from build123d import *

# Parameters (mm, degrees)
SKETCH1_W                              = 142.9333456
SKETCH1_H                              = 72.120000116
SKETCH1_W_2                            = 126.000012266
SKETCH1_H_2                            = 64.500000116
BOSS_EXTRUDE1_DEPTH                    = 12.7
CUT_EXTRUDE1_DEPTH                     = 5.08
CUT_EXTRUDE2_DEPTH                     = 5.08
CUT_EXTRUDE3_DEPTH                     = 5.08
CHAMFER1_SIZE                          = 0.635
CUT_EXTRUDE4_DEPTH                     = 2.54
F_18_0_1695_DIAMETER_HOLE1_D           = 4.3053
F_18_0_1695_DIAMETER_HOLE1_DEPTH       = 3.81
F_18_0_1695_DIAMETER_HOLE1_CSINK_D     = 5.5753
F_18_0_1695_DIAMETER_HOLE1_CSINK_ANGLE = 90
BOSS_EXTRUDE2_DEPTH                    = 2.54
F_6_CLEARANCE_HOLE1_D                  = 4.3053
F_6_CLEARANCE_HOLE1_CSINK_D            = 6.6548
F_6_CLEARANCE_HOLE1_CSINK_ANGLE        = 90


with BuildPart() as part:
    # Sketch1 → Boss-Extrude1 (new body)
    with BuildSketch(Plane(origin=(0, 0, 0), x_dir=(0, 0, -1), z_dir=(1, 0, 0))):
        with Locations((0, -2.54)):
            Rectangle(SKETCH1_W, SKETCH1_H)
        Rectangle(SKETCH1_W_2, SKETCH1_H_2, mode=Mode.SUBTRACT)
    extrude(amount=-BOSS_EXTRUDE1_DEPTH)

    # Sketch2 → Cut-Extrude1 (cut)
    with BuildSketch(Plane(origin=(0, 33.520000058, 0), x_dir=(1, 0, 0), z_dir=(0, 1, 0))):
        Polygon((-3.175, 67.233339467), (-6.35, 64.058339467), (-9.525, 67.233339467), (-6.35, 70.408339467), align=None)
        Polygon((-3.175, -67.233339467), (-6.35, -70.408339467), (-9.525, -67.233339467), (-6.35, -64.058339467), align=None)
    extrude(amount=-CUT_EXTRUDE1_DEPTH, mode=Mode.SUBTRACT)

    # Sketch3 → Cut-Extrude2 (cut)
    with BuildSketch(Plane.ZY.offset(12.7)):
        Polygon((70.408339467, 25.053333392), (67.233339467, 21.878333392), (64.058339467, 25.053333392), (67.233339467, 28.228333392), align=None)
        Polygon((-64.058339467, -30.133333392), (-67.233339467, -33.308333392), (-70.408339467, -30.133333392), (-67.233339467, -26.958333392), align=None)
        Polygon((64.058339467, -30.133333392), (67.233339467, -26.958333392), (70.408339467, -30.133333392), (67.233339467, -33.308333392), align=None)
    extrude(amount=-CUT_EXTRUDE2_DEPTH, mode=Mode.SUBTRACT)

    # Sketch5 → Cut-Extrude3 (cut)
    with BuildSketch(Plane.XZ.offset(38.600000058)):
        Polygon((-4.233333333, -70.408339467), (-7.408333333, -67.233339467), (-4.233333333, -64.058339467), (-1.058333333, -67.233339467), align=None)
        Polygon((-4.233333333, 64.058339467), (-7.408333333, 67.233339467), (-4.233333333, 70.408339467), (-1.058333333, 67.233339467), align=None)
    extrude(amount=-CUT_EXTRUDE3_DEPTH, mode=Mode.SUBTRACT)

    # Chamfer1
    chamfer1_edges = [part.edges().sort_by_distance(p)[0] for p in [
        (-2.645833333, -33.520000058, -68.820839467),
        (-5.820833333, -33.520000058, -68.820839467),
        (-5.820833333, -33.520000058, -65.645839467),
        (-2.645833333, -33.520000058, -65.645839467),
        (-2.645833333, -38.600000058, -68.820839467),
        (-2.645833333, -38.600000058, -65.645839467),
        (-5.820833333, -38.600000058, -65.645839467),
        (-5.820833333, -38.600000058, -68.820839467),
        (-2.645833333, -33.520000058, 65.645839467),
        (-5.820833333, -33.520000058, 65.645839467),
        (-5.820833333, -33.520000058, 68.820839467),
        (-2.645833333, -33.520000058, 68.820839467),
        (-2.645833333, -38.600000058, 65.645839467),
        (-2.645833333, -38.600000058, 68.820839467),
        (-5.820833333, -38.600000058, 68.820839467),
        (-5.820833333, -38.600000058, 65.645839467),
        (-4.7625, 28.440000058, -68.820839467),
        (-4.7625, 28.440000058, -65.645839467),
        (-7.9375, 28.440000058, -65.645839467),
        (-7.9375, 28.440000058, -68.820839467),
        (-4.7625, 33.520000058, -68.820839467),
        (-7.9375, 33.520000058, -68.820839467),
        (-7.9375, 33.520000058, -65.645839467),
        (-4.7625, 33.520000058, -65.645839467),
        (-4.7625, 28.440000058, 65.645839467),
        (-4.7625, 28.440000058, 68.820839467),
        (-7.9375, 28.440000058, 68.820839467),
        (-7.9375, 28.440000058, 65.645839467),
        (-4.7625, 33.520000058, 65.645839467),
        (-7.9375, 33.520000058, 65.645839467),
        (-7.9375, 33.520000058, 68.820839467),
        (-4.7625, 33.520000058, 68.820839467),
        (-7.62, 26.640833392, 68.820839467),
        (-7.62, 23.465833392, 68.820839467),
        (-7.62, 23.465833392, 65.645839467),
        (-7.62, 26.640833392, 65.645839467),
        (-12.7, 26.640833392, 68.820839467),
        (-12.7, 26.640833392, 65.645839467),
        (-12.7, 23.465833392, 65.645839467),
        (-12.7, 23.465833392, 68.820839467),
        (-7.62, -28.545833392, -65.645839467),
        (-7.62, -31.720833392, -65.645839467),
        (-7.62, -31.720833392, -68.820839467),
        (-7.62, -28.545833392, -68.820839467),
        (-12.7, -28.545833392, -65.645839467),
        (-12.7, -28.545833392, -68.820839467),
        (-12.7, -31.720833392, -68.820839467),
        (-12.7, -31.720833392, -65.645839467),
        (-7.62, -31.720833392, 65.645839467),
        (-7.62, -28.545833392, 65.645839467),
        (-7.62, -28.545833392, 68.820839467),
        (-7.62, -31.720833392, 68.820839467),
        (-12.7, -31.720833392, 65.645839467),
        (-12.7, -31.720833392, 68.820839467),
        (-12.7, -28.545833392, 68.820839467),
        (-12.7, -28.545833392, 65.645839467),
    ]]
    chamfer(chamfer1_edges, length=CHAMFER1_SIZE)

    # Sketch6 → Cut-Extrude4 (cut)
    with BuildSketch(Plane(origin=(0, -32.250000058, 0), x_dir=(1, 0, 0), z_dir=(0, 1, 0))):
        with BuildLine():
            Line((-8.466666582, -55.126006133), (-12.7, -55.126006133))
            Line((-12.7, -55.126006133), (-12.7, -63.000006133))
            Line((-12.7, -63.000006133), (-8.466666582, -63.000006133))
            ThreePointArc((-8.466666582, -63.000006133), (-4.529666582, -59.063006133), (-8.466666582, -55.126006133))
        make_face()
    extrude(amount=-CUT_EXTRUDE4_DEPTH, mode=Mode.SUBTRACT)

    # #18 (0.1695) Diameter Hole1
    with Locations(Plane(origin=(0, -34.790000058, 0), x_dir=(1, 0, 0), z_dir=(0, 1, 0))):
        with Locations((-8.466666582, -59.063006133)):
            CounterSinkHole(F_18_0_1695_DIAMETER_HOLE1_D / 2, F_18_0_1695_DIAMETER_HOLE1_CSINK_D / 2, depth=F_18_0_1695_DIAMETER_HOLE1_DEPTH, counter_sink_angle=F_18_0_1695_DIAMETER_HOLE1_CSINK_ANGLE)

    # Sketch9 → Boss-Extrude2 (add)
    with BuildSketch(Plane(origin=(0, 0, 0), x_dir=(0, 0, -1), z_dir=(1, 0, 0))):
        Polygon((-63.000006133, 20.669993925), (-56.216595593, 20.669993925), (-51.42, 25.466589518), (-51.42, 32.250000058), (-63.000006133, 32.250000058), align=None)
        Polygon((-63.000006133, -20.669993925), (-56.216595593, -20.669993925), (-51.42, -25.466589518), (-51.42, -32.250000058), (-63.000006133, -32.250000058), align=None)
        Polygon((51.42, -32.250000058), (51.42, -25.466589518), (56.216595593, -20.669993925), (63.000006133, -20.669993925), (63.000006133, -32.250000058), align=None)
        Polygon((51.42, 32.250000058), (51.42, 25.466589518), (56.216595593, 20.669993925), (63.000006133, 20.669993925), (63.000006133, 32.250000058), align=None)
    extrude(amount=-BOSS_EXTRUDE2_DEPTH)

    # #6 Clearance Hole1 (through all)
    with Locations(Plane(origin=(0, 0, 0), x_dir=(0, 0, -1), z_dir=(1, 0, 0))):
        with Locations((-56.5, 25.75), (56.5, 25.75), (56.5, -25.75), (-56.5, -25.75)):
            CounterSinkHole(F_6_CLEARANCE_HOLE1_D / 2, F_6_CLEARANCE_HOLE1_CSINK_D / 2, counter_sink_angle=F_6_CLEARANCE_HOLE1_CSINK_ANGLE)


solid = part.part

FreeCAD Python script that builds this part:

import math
import FreeCAD as App
import Part
import Sketcher
from FreeCAD import Vector
Q = App.Units.Quantity


def edges_at(feature, points):
    """Names of the edges that pass closest to the given points."""
    edges = feature.Shape.Edges
    near = lambda p: min(range(len(edges)), key=lambda i: edges[i].distToShape(Part.Vertex(*p))[0])
    return sorted({f"Edge{near(p) + 1}" for p in points})


def add_polygon(sketch, points):
    """Adds a closed chain of lines whose ends are joined by coincident constraints."""
    first, n = sketch.GeometryCount, len(points)
    for a, b in zip(points, points[1:] + points[:1]):
        sketch.addGeometry(Part.LineSegment(App.Vector(*a, 0), App.Vector(*b, 0)), False)
    for i in range(n):
        sketch.addConstraint(Sketcher.Constraint("Coincident", first + i, 2, first + (i + 1) % n, 1))

doc = App.newDocument("Part")
body = doc.addObject("PartDesign::Body", "Body")

# Sketch on YZ plane
sketch1 = doc.addObject("Sketcher::SketchObject", "Sketch")
body.addObject(sketch1)
sketch1.AttachmentSupport = (doc.YZ_Plane, [""])
sketch1.MapMode = "FlatFace"
add_polygon(sketch1, [(34, 71), (-39, 71), (-39, -71), (34, -71)])  # lines 0-3
add_polygon(sketch1, [(-32, -63), (-32, 63), (32, 63), (32, -63)])  # lines 4-7
sketch1.addConstraint(Sketcher.Constraint("Horizontal", 0))
sketch1.addConstraint(Sketcher.Constraint("Vertical", 1))
sketch1.addConstraint(Sketcher.Constraint("Horizontal", 2))
sketch1.addConstraint(Sketcher.Constraint("Vertical", 3))
sketch1.addConstraint(Sketcher.Constraint("Vertical", 4))
sketch1.addConstraint(Sketcher.Constraint("Horizontal", 5))
sketch1.addConstraint(Sketcher.Constraint("Vertical", 6))
sketch1.addConstraint(Sketcher.Constraint("Horizontal", 7))
sketch1.addConstraint(Sketcher.Constraint("Symmetric", 4, 2, 6, 2, -1, 1))
sketch1.addConstraint(Sketcher.Constraint("DistanceX", 0, 2, 4, 2, Q("0.25 in")))
sketch1.addConstraint(Sketcher.Constraint("DistanceX", 5, 2, 3, 2, Q("0.05 in")))
sketch1.addConstraint(Sketcher.Constraint("DistanceX", 0, 2, 0, 1, Q("72.12 mm")))
sketch1.addConstraint(Sketcher.Constraint("DistanceY", 1, 2, 1, 1, Q("142.933346 mm")))
sketch1.addConstraint(Sketcher.Constraint("DistanceY", 4, 1, 4, 2, Q("126.000012 mm")))
sketch1.addConstraint(Sketcher.Constraint("DistanceY", 1, 2, 4, 2, Q("134.466679 mm")))
pad1 = doc.addObject("PartDesign::Pad", "Pad")
body.addObject(pad1)
pad1.Profile = sketch1
pad1.Length = Q("0.5 in")
pad1.Reversed = True

# Sketch on XZ plane
sketch2 = doc.addObject("Sketcher::SketchObject", "Sketch001")
body.addObject(sketch2)
sketch2.AttachmentSupport = (doc.XZ_Plane, [""])
sketch2.MapMode = "FlatFace"
sketch2.AttachmentOffset = App.Placement(Vector(0, 0, -33.52), App.Rotation())
add_polygon(sketch2, [(-6.3, -64.1), (-3.2, -67.2), (-6.3, -70.4), (-9.5, -67.2)])  # lines 0-3
add_polygon(sketch2, [(-6.3, 70.4), (-3.2, 67.2), (-6.3, 64.1), (-9.5, 67.2)])  # lines 4-7
sketch2.addConstraint(Sketcher.Constraint("Symmetric", 0, 2, 4, 2, -1))
sketch2.addConstraint(Sketcher.Constraint("Symmetric", 3, 2, 5, 2, -1))
sketch2.addConstraint(Sketcher.Constraint("Symmetric", 2, 2, 6, 2, -1))
sketch2.addConstraint(Sketcher.Constraint("Symmetric", 1, 2, 7, 2, -1))
sketch2.addConstraint(Sketcher.Constraint("Perpendicular", 0, 1))
sketch2.addConstraint(Sketcher.Constraint("Perpendicular", 1, 2))
sketch2.addConstraint(Sketcher.Constraint("Perpendicular", 2, 3))
sketch2.addConstraint(Sketcher.Constraint("Perpendicular", 3, 4))
sketch2.addConstraint(Sketcher.Constraint("Horizontal", 0, 2, 2, 2))
sketch2.addConstraint(Sketcher.Constraint("DistanceX", 1, 2, -1, 1, Q("0.25 in")))
sketch2.addConstraint(Sketcher.Constraint("DistanceX", 2, 2, 0, 2, Q("0.25 in")))
sketch2.addConstraint(Sketcher.Constraint("DistanceY", 0, 2, -1, 1, Q("67.233339 mm")))
pocket1 = doc.addObject("PartDesign::Pocket", "Pocket")
body.addObject(pocket1)
pocket1.Profile = sketch2
pocket1.Length = Q("0.2 in")
pocket1.Reversed = True

# Sketch on YZ plane
sketch3 = doc.addObject("Sketcher::SketchObject", "Sketch002")
body.addObject(sketch3)
sketch3.AttachmentSupport = (doc.YZ_Plane, [""])
sketch3.MapMode = "FlatFace"
sketch3.AttachmentOffset = App.Placement(Vector(0, 0, -0.5 * 25.4), App.Rotation())
add_polygon(sketch3, [(21.9, 67.2), (25.1, 70.4), (28.2, 67.2), (25.1, 64.1)])  # lines 0-3
add_polygon(sketch3, [(-33.3, -67.2), (-30.1, -64.1), (-27, -67.2), (-30.1, -70.4)])  # lines 4-7
add_polygon(sketch3, [(-27, 67.2), (-30.1, 64.1), (-33.3, 67.2), (-30.1, 70.4)])  # lines 8-11
sketch3.addConstraint(Sketcher.Constraint("Symmetric", 4, 2, 8, 2, -1))
sketch3.addConstraint(Sketcher.Constraint("Symmetric", 7, 2, 9, 2, -1))
sketch3.addConstraint(Sketcher.Constraint("Symmetric", 6, 2, 10, 2, -1))
sketch3.addConstraint(Sketcher.Constraint("Symmetric", 5, 2, 11, 2, -1))
sketch3.addConstraint(Sketcher.Constraint("Perpendicular", 0, 1))
sketch3.addConstraint(Sketcher.Constraint("Perpendicular", 1, 2))
sketch3.addConstraint(Sketcher.Constraint("Perpendicular", 2, 3))
sketch3.addConstraint(Sketcher.Constraint("Perpendicular", 3, 4))
sketch3.addConstraint(Sketcher.Constraint("Perpendicular", 4, 5))
sketch3.addConstraint(Sketcher.Constraint("Perpendicular", 5, 6))
sketch3.addConstraint(Sketcher.Constraint("Perpendicular", 6, 7))
sketch3.addConstraint(Sketcher.Constraint("Perpendicular", 7, 8))
sketch3.addConstraint(Sketcher.Constraint("Horizontal", 1, 2, 3, 2))
sketch3.addConstraint(Sketcher.Constraint("Horizontal", 5, 2, 7, 2))
sketch3.addConstraint(Sketcher.Constraint("Horizontal", 2, 2, 8, 2))
sketch3.addConstraint(Sketcher.Constraint("Horizontal", 3, 2, 9, 2))
sketch3.addConstraint(Sketcher.Constraint("DistanceY", 2, 2, 0, 2, Q("0.25 in")))
sketch3.addConstraint(Sketcher.Constraint("DistanceY", -1, 1, 0, 2, Q("70.408339 mm")))
sketch3.addConstraint(Sketcher.Constraint("DistanceX", -1, 1, 0, 2, Q("25.053333 mm")))
sketch3.addConstraint(Sketcher.Constraint("DistanceX", 4, 2, -1, 1, Q("30.133333 mm")))
pocket2 = doc.addObject("PartDesign::Pocket", "Pocket001")
body.addObject(pocket2)
pocket2.Profile = sketch3
pocket2.Length = Q("0.2 in")
pocket2.Reversed = True

# Sketch on XZ plane
sketch4 = doc.addObject("Sketcher::SketchObject", "Sketch003")
body.addObject(sketch4)
sketch4.AttachmentSupport = (doc.XZ_Plane, [""])
sketch4.MapMode = "FlatFace"
sketch4.AttachmentOffset = App.Placement(Vector(0, 0, 38.6), App.Rotation())
add_polygon(sketch4, [(-7.4, -67.2), (-4.2, -70.4), (-1.1, -67.2), (-4.2, -64.1)])  # lines 0-3
add_polygon(sketch4, [(-7.4, 67.2), (-4.2, 64.1), (-1.1, 67.2), (-4.2, 70.4)])  # lines 4-7
sketch4.addConstraint(Sketcher.Constraint("Symmetric", 2, 2, 4, 2, -1))
sketch4.addConstraint(Sketcher.Constraint("Symmetric", 1, 2, 5, 2, -1))
sketch4.addConstraint(Sketcher.Constraint("Symmetric", 0, 2, 6, 2, -1))
sketch4.addConstraint(Sketcher.Constraint("Symmetric", 3, 2, 7, 2, -1))
sketch4.addConstraint(Sketcher.Constraint("Perpendicular", 0, 1))
sketch4.addConstraint(Sketcher.Constraint("Perpendicular", 1, 2))
sketch4.addConstraint(Sketcher.Constraint("Perpendicular", 2, 3))
sketch4.addConstraint(Sketcher.Constraint("Perpendicular", 3, 4))
sketch4.addConstraint(Sketcher.Constraint("Horizontal", 1, 2, 3, 2))
sketch4.addConstraint(Sketcher.Constraint("DistanceY", 0, 2, 2, 2, Q("0.25 in")))
sketch4.addConstraint(Sketcher.Constraint("DistanceY", 0, 2, -1, 1, Q("70.408339 mm")))
sketch4.addConstraint(Sketcher.Constraint("DistanceX", 0, 2, -1, 1, Q("4.233333 mm")))
pocket3 = doc.addObject("PartDesign::Pocket", "Pocket002")
body.addObject(pocket3)
pocket3.Profile = sketch4
pocket3.Length = Q("0.2 in")
doc.recompute()

chamfer = doc.addObject("PartDesign::Chamfer", "Chamfer")
body.addObject(chamfer)
chamfer.Base = (pocket3, edges_at(pocket3, [
    (-2.646, -33.52, -68.821),
    (-5.821, -33.52, -68.821),
    (-5.821, -33.52, -65.646),
    (-2.646, -33.52, -65.646),
    (-2.646, -38.6, -68.821),
    (-2.646, -38.6, -65.646),
    (-5.821, -38.6, -65.646),
    (-5.821, -38.6, -68.821),
    (-2.646, -33.52, 65.646),
    (-5.821, -33.52, 65.646),
    (-5.821, -33.52, 68.821),
    (-2.646, -33.52, 68.821),
    (-2.646, -38.6, 65.646),
    (-2.646, -38.6, 68.821),
    (-5.821, -38.6, 68.821),
    (-5.821, -38.6, 65.646),
    (-4.763, 28.44, -68.821),
    (-4.763, 28.44, -65.646),
    (-7.938, 28.44, -65.646),
    (-7.938, 28.44, -68.821),
    (-4.763, 33.52, -68.821),
    (-7.938, 33.52, -68.821),
    (-7.938, 33.52, -65.646),
    (-4.763, 33.52, -65.646),
    (-4.763, 28.44, 65.646),
    (-4.763, 28.44, 68.821),
    (-7.938, 28.44, 68.821),
    (-7.938, 28.44, 65.646),
    (-4.763, 33.52, 65.646),
    (-7.938, 33.52, 65.646),
    (-7.938, 33.52, 68.821),
    (-4.763, 33.52, 68.821),
    (-7.62, 26.641, 68.821),
    (-7.62, 23.466, 68.821),
    (-7.62, 23.466, 65.646),
    (-7.62, 26.641, 65.646),
    (-12.7, 26.641, 68.821),
    (-12.7, 26.641, 65.646),
    (-12.7, 23.466, 65.646),
    (-12.7, 23.466, 68.821),
    (-7.62, -28.546, -65.646),
    (-7.62, -31.721, -65.646),
    (-7.62, -31.721, -68.821),
    (-7.62, -28.546, -68.821),
    (-12.7, -28.546, -65.646),
    (-12.7, -28.546, -68.821),
    (-12.7, -31.721, -68.821),
    (-12.7, -31.721, -65.646),
    (-7.62, -31.721, 65.646),
    (-7.62, -28.546, 65.646),
    (-7.62, -28.546, 68.821),
    (-7.62, -31.721, 68.821),
    (-12.7, -31.721, 65.646),
    (-12.7, -31.721, 68.821),
    (-12.7, -28.546, 68.821),
    (-12.7, -28.546, 65.646),
]))
chamfer.Size = Q("0.025 in")

# Sketch on XZ plane
sketch5 = doc.addObject("Sketcher::SketchObject", "Sketch004")
body.addObject(sketch5)
sketch5.AttachmentSupport = (doc.XZ_Plane, [""])
sketch5.MapMode = "FlatFace"
sketch5.AttachmentOffset = App.Placement(Vector(0, 0, 32.25), App.Rotation())
sketch5.addGeometry(Part.LineSegment(Vector(-8.5, 55.1, 0), Vector(-12.7, 55.1, 0)), False)
sketch5.addGeometry(Part.LineSegment(Vector(-12.7, 55.1, 0), Vector(-12.7, 63, 0)), False)
sketch5.addGeometry(Part.LineSegment(Vector(-12.7, 63, 0), Vector(-8.5, 63, 0)), False)
sketch5.addGeometry(Part.ArcOfCircle(Part.Circle(Vector(-8.5, 59.1, 0), Vector(0, 0, 1), 3.9), math.radians(-90), math.radians(90)), False)
sketch5.addConstraint(Sketcher.Constraint("Coincident", 0, 2, 1, 1))
sketch5.addConstraint(Sketcher.Constraint("Coincident", 1, 2, 2, 1))
sketch5.addConstraint(Sketcher.Constraint("Tangent", 2, 2, 3, 2))
sketch5.addConstraint(Sketcher.Constraint("Tangent", 3, 1, 0, 1))
sketch5.addConstraint(Sketcher.Constraint("Horizontal", 0))
sketch5.addConstraint(Sketcher.Constraint("Vertical", 1))
sketch5.addConstraint(Sketcher.Constraint("Horizontal", 2))
sketch5.addConstraint(Sketcher.Constraint("Radius", 3, Q("0.155 in")))
sketch5.addConstraint(Sketcher.Constraint("DistanceX", 0, 2, -1, 1, Q("0.5 in")))
sketch5.addConstraint(Sketcher.Constraint("DistanceX", 0, 2, 0, 1, Q("4.233333 mm")))
sketch5.addConstraint(Sketcher.Constraint("DistanceY", -1, 1, 3, 3, Q("59.063006 mm")))
pocket4 = doc.addObject("PartDesign::Pocket", "Pocket003")
body.addObject(pocket4)
pocket4.Profile = sketch5
pocket4.Length = Q("0.1 in")
pocket4.Reversed = True

# Sketch on XZ plane
sketch6 = doc.addObject("Sketcher::SketchObject", "Sketch005")
body.addObject(sketch6)
sketch6.AttachmentSupport = (doc.XZ_Plane, [""])
sketch6.MapMode = "FlatFace"
sketch6.AttachmentOffset = App.Placement(Vector(0, 0, 34.79), App.Rotation())
sketch6.addGeometry(Part.Circle(Vector(-8.5, 59.1, 0), Vector(0, 0, 1), 2.2), False)
sketch6.addConstraint(Sketcher.Constraint("Diameter", 0, Q("0.1695 in")))
sketch6.addConstraint(Sketcher.Constraint("DistanceX", 0, 3, -1, 1, Q("8.466667 mm")))
sketch6.addConstraint(Sketcher.Constraint("DistanceY", -1, 1, 0, 3, Q("59.063006 mm")))
doc.recompute()
hole = doc.addObject("PartDesign::Hole", "Hole")
body.addObject(hole)
hole.Profile = sketch6
hole.ThreadType = "None"
hole.Diameter = Q("0.1695 in")
hole.DepthType = "Dimension"
hole.Depth = Q("0.15 in")
hole.DrillPoint = "Flat"
hole.HoleCutType = "Countersink"
hole.HoleCutDiameter = Q("0.2195 in")
hole.HoleCutCountersinkAngle = 90
hole.Reversed = True

# Sketch on YZ plane
sketch7 = doc.addObject("Sketcher::SketchObject", "Sketch006")
body.addObject(sketch7)
sketch7.AttachmentSupport = (doc.YZ_Plane, [""])
sketch7.MapMode = "FlatFace"
add_polygon(sketch7, [(21, 63), (21, 56), (25, 51), (32, 51), (32, 63)])  # lines 0-4
add_polygon(sketch7, [(-21, 56), (-21, 63), (-32, 63), (-32, 51), (-25, 51)])  # lines 5-9
add_polygon(sketch7, [(-25, -51), (-32, -51), (-32, -63), (-21, -63), (-21, -56)])  # lines 10-14
add_polygon(sketch7, [(32, -51), (25, -51), (21, -56), (21, -63), (32, -63)])  # lines 15-19
sketch7.addConstraint(Sketcher.Constraint("Vertical", 0))
sketch7.addConstraint(Sketcher.Constraint("Horizontal", 2))
sketch7.addConstraint(Sketcher.Constraint("Vertical", 3))
sketch7.addConstraint(Sketcher.Constraint("Horizontal", 4))
sketch7.addConstraint(Sketcher.Constraint("Vertical", 5))
sketch7.addConstraint(Sketcher.Constraint("Horizontal", 6))
sketch7.addConstraint(Sketcher.Constraint("Vertical", 7))
sketch7.addConstraint(Sketcher.Constraint("Horizontal", 8))
sketch7.addConstraint(Sketcher.Constraint("Horizontal", 10))
sketch7.addConstraint(Sketcher.Constraint("Vertical", 11))
sketch7.addConstraint(Sketcher.Constraint("Horizontal", 12))
sketch7.addConstraint(Sketcher.Constraint("Vertical", 13))
sketch7.addConstraint(Sketcher.Constraint("Horizontal", 15))
sketch7.addConstraint(Sketcher.Constraint("Vertical", 17))
sketch7.addConstraint(Sketcher.Constraint("Horizontal", 18))
sketch7.addConstraint(Sketcher.Constraint("Vertical", 19))
sketch7.addConstraint(Sketcher.Constraint("Symmetric", 2, 2, 10, 2, -1, 1))
sketch7.addConstraint(Sketcher.Constraint("Symmetric", 4, 2, 12, 2, -1, 1))
sketch7.addConstraint(Sketcher.Constraint("Symmetric", 8, 2, 15, 2, -1, 1))
sketch7.addConstraint(Sketcher.Constraint("Symmetric", 9, 2, 16, 2, -1, 1))
sketch7.addConstraint(Sketcher.Constraint("Symmetric", 6, 2, 18, 2, -1, 1))
sketch7.addConstraint(Sketcher.Constraint("Symmetric", 4, 2, 5, 2, -2))
sketch7.addConstraint(Sketcher.Constraint("Symmetric", 2, 2, 7, 2, -2))
sketch7.addConstraint(Sketcher.Constraint("Perpendicular", 1, 9))
sketch7.addConstraint(Sketcher.Constraint("Perpendicular", 9, 14))
sketch7.addConstraint(Sketcher.Constraint("Horizontal", 0, 2, 9, 2))
sketch7.addConstraint(Sketcher.Constraint("Horizontal", 13, 2, 16, 2))
sketch7.addConstraint(Sketcher.Constraint("Vertical", 8, 2, 14, 2))
sketch7.addConstraint(Sketcher.Constraint("Equal", 15, 0))
sketch7.addConstraint(Sketcher.Constraint("DistanceX", 2, 1, 2, 2, Q("6.783411 mm")))
sketch7.addConstraint(Sketcher.Constraint("DistanceY", -1, 1, 1, 2, Q("51.42 mm")))
sketch7.addConstraint(Sketcher.Constraint("DistanceX", -1, 1, 2, 2, Q("32.25 mm")))
sketch7.addConstraint(Sketcher.Constraint("DistanceY", 11, 2, 9, 2, Q("119.216602 mm")))
pad2 = doc.addObject("PartDesign::Pad", "Pad001")
body.addObject(pad2)
pad2.Profile = sketch7
pad2.Length = Q("0.1 in")
pad2.Reversed = True

# Sketch on YZ plane
sketch8 = doc.addObject("Sketcher::SketchObject", "Sketch007")
body.addObject(sketch8)
sketch8.AttachmentSupport = (doc.YZ_Plane, [""])
sketch8.MapMode = "FlatFace"
sketch8.addGeometry(Part.Circle(Vector(25.8, 56.5, 0), Vector(0, 0, 1), 2.2), False)
sketch8.addGeometry(Part.Circle(Vector(25.8, -56.5, 0), Vector(0, 0, 1), 2.2), False)
sketch8.addGeometry(Part.Circle(Vector(-25.8, -56.5, 0), Vector(0, 0, 1), 2.2), False)
sketch8.addGeometry(Part.Circle(Vector(-25.8, 56.5, 0), Vector(0, 0, 1), 2.2), False)
sketch8.addConstraint(Sketcher.Constraint("Equal", 0, 1))
sketch8.addConstraint(Sketcher.Constraint("Equal", 1, 2))
sketch8.addConstraint(Sketcher.Constraint("Equal", 2, 3))
sketch8.addConstraint(Sketcher.Constraint("Symmetric", 0, 3, 2, 3, -1, 1))
sketch8.addConstraint(Sketcher.Constraint("Symmetric", 1, 3, 3, 3, -1, 1))
sketch8.addConstraint(Sketcher.Constraint("Symmetric", 1, 3, 2, 3, -2))
sketch8.addConstraint(Sketcher.Constraint("Diameter", 0, Q("0.1695 in")))
sketch8.addConstraint(Sketcher.Constraint("DistanceX", -1, 1, 0, 3, Q("25.75 mm")))
sketch8.addConstraint(Sketcher.Constraint("DistanceY", -1, 1, 0, 3, Q("56.5 mm")))
doc.recompute()
hole2 = doc.addObject("PartDesign::Hole", "Hole001")
body.addObject(hole2)
hole2.Profile = sketch8
hole2.ThreadType = "None"
hole2.Diameter = Q("0.1695 in")
hole2.DepthType = "ThroughAll"
hole2.HoleCutType = "Countersink"
hole2.HoleCutDiameter = Q("0.262 in")
hole2.HoleCutCountersinkAngle = 90

doc.recompute()
